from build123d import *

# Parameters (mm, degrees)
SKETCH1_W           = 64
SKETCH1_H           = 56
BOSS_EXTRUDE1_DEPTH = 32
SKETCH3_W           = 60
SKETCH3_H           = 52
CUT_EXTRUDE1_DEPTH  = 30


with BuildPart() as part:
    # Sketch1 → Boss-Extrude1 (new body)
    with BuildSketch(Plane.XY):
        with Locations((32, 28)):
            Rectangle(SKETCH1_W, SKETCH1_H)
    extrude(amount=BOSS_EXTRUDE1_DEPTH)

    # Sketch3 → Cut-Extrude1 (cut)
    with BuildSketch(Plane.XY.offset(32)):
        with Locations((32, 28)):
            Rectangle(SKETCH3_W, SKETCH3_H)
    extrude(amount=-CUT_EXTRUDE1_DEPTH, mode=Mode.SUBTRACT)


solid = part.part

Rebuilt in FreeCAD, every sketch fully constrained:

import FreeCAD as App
import Part
import Sketcher

V = App.Vector
Q = App.Units.Quantity

doc = App.newDocument("Part")
body = doc.addObject("PartDesign::Body", "Body")

# Sketch on XY plane
sketch1 = doc.addObject("Sketcher::SketchObject", "Sketch")
body.addObject(sketch1)
sketch1.AttachmentSupport = (doc.XY_Plane, [""])
sketch1.MapMode = "FlatFace"
sketch1.addGeometry([
    Part.LineSegment(V(0, 56, 0), V(0, 0, 0)),
    Part.LineSegment(V(0, 0, 0), V(64, 0, 0)),
    Part.LineSegment(V(64, 0, 0), V(64, 56, 0)),
    Part.LineSegment(V(64, 56, 0), V(0, 56, 0)),
], False)
sketch1.addConstraint([
    Sketcher.Constraint("Coincident", 0, 2, 1, 1),
    Sketcher.Constraint("Coincident", 1, 2, 2, 1),
    Sketcher.Constraint("Coincident", 2, 2, 3, 1),
    Sketcher.Constraint("Coincident", 3, 2, 0, 1),
    Sketcher.Constraint("Vertical", 0),
    Sketcher.Constraint("Horizontal", 1),
    Sketcher.Constraint("Vertical", 2),
    Sketcher.Constraint("Horizontal", 3),
    Sketcher.Constraint("Coincident", 0, 2, -1, 1),
    Sketcher.Constraint("DistanceX", 1, 1, 1, 2, Q("64 mm")),
    Sketcher.Constraint("DistanceY", 0, 2, 0, 1, Q("56 mm")),
])
pad1 = doc.addObject("PartDesign::Pad", "Pad")
body.addObject(pad1)
pad1.Profile = sketch1
pad1.Length = 32

# Sketch on XY plane
sketch2 = doc.addObject("Sketcher::SketchObject", "Sketch001")
body.addObject(sketch2)
sketch2.AttachmentSupport = (doc.XY_Plane, [""])
sketch2.MapMode = "FlatFace"
sketch2.AttachmentOffset = App.Placement(V(0, 0, 32), App.Rotation())
sketch2.addGeometry([
    Part.LineSegment(V(2, 54, 0), V(2, 2, 0)),
    Part.LineSegment(V(2, 2, 0), V(62, 2, 0)),
    Part.LineSegment(V(62, 2, 0), V(62, 54, 0)),
    Part.LineSegment(V(62, 54, 0), V(2, 54, 0)),
], False)
sketch2.addConstraint([
    Sketcher.Constraint("Coincident", 0, 2, 1, 1),
    Sketcher.Constraint("Coincident", 1, 2, 2, 1),
    Sketcher.Constraint("Coincident", 2, 2, 3, 1),
    Sketcher.Constraint("Coincident", 3, 2, 0, 1),
    Sketcher.Constraint("Vertical", 0),
    Sketcher.Constraint("Horizontal", 1),
    Sketcher.Constraint("Vertical", 2),
    Sketcher.Constraint("Horizontal", 3),
    Sketcher.Constraint("DistanceX", 1, 1, 1, 2, Q("60 mm")),
    Sketcher.Constraint("DistanceY", 0, 2, 0, 1, Q("52 mm")),
    Sketcher.Constraint("DistanceX", -1, 1, 0, 2, Q("2 mm")),
    Sketcher.Constraint("DistanceY", -1, 1, 0, 2, Q("2 mm")),
])
pocket1 = doc.addObject("PartDesign::Pocket", "Pocket")
body.addObject(pocket1)
pocket1.Profile = sketch2
pocket1.Length = 30

doc.recompute()
